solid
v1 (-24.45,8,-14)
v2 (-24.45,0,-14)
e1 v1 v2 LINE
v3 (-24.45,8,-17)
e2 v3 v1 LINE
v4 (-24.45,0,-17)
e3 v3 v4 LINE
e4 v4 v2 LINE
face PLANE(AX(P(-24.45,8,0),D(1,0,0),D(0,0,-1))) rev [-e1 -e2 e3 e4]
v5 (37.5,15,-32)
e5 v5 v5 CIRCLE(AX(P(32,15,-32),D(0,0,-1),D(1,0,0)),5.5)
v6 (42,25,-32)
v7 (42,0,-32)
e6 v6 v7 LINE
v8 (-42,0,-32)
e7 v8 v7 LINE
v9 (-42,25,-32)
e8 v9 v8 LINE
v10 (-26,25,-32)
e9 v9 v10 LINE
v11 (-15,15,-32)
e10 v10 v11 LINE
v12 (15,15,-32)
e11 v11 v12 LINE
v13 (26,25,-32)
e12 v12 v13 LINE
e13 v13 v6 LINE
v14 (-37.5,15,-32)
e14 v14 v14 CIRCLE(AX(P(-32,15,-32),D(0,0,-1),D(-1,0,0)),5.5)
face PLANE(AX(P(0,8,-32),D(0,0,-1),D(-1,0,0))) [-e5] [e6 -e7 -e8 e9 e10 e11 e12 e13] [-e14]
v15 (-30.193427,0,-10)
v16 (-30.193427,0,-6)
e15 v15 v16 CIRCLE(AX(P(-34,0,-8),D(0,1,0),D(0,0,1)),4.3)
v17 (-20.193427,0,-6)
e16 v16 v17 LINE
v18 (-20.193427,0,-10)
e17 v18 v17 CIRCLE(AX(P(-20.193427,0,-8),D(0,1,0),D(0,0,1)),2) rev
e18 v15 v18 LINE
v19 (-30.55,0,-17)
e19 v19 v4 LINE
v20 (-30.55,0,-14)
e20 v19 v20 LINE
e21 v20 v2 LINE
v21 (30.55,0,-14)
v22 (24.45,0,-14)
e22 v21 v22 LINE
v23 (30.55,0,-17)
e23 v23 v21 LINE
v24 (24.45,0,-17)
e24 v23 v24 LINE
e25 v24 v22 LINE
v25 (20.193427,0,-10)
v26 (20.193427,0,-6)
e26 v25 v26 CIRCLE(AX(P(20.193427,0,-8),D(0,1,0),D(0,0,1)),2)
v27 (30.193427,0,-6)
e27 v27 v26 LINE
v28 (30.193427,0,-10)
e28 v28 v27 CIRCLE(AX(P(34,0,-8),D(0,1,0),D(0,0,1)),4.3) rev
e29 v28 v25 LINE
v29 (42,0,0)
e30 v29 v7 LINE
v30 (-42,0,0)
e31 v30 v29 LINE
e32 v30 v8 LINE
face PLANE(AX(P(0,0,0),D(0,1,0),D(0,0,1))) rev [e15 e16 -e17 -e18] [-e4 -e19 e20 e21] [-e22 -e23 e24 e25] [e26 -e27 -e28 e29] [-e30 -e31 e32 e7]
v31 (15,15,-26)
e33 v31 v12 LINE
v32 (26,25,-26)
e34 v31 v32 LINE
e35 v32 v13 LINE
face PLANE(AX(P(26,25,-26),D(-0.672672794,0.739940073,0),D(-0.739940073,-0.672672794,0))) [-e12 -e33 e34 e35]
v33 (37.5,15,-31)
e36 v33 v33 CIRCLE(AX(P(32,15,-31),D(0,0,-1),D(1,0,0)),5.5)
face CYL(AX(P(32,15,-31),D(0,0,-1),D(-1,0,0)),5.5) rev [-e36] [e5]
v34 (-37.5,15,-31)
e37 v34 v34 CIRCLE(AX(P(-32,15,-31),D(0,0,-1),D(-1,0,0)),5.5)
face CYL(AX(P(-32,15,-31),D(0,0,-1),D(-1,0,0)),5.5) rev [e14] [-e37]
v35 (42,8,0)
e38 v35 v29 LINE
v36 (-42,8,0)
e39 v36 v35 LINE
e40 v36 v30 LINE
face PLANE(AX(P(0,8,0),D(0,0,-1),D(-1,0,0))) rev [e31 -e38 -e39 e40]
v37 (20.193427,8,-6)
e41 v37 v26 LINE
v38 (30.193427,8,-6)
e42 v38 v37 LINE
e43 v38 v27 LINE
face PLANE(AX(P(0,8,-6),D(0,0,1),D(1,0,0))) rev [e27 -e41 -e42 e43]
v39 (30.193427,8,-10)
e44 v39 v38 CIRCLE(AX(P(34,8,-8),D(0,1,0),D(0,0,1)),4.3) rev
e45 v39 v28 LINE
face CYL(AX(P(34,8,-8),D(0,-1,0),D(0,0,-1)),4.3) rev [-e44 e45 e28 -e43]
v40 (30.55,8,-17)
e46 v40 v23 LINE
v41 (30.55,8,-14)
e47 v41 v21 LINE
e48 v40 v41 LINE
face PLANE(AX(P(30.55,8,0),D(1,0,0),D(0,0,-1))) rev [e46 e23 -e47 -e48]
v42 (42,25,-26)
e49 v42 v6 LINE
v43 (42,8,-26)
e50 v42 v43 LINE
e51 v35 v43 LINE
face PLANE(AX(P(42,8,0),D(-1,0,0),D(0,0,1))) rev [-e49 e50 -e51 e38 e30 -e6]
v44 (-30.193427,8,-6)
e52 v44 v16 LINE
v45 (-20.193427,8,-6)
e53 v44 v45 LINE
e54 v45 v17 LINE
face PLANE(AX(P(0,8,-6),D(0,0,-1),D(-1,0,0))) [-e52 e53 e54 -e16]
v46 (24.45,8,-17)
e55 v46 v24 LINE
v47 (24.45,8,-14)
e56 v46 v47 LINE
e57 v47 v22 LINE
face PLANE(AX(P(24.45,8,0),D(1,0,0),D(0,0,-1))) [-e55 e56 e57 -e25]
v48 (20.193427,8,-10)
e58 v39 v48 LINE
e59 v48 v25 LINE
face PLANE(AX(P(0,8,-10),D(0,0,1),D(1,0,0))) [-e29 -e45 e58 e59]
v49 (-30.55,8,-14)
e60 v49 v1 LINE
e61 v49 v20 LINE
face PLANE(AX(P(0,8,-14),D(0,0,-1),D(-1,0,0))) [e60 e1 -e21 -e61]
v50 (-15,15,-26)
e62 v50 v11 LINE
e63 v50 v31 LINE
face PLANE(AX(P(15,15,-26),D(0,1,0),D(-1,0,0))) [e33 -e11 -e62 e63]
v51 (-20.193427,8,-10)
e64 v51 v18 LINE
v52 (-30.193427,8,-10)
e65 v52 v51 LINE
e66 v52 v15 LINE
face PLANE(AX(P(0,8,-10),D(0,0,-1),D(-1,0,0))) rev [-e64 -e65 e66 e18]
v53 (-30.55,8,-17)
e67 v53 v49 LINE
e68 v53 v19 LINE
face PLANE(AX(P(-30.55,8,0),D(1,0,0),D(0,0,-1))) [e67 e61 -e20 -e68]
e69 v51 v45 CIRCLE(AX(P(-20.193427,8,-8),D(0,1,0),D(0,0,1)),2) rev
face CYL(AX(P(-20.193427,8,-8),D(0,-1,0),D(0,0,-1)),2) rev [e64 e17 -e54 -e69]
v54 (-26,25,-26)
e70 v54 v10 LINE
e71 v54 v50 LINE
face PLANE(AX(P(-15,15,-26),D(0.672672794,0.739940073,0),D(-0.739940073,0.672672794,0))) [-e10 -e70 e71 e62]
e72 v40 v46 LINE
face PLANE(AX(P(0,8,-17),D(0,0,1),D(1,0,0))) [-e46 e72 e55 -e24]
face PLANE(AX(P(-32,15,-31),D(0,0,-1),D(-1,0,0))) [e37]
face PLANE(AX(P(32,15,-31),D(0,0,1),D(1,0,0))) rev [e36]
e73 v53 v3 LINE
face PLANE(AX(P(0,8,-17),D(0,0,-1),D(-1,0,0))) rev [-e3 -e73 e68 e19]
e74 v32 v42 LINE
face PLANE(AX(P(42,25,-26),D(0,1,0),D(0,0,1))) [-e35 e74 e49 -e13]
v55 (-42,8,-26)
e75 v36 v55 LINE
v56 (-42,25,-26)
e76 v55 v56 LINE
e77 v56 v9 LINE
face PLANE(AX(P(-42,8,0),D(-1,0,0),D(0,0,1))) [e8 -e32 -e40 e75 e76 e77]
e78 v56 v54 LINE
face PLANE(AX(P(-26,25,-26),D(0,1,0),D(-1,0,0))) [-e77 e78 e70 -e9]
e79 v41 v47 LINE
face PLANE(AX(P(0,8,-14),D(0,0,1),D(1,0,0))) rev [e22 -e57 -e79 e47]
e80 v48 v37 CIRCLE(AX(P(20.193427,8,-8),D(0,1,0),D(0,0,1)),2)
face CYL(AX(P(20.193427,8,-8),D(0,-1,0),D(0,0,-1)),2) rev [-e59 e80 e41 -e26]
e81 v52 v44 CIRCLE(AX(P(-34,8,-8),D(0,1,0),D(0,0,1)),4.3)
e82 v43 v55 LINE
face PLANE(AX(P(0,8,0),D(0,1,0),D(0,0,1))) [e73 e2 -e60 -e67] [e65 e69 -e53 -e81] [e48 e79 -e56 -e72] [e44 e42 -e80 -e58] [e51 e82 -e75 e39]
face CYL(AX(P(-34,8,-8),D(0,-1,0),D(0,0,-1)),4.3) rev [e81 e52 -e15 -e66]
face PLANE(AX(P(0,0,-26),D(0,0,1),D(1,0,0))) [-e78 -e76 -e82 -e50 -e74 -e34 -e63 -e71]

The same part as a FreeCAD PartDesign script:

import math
import FreeCAD as App
import Part
import Sketcher
from FreeCAD import Vector


def add_polygon(sketch, points):
    """Adds a closed chain of lines whose ends are joined by coincident constraints."""
    first, n = sketch.GeometryCount, len(points)
    for a, b in zip(points, points[1:] + points[:1]):
        sketch.addGeometry(Part.LineSegment(App.Vector(*a, 0), App.Vector(*b, 0)), False)
    for i in range(n):
        sketch.addConstraint(Sketcher.Constraint("Coincident", first + i, 2, first + (i + 1) % n, 1))

doc = App.newDocument("Part")
body = doc.addObject("PartDesign::Body", "Body")

# Sketch on XZ plane
sketch1 = doc.addObject("Sketcher::SketchObject", "Sketch")
body.addObject(sketch1)
sketch1.AttachmentSupport = (doc.XZ_Plane, [""])
sketch1.MapMode = "FlatFace"
add_polygon(sketch1, [(-42, -32), (-42, 0), (42, 0), (42, -32)])  # lines 0-3
sketch1.addGeometry(Part.ArcOfCircle(Part.Circle(Vector(-34, -8, 0), Vector(0, 0, 1), 4.3), math.radians(28), math.radians(332)), False)  # 4
sketch1.addGeometry(Part.LineSegment(Vector(-30.2, -10, 0), Vector(-20.2, -10, 0)), False)  # 5
sketch1.addGeometry(Part.ArcOfCircle(Part.Circle(Vector(-20.2, -8, 0), Vector(0, 0, 1), 2), math.radians(-90), math.radians(90)), False)  # 6
sketch1.addGeometry(Part.LineSegment(Vector(-20.2, -6, 0), Vector(-30.2, -6, 0)), False)  # 7
sketch1.addGeometry(Part.ArcOfCircle(Part.Circle(Vector(20.2, -8, 0), Vector(0, 0, 1), 2), math.radians(90), math.radians(270)), False)  # 8
sketch1.addGeometry(Part.LineSegment(Vector(20.2, -10, 0), Vector(30.2, -10, 0)), False)  # 9
sketch1.addGeometry(Part.ArcOfCircle(Part.Circle(Vector(34, -8, 0), Vector(0, 0, 1), 4.3), math.radians(-152), math.radians(152)), False)  # 10
sketch1.addGeometry(Part.LineSegment(Vector(30.2, -6, 0), Vector(20.2, -6, 0)), False)  # 11
add_polygon(sketch1, [(-24.4, -14), (-30.6, -14), (-30.6, -17), (-24.4, -17)])  # lines 12-15
add_polygon(sketch1, [(30.6, -14), (24.4, -14), (24.4, -17), (30.6, -17)])  # lines 16-19
sketch1.addConstraint(Sketcher.Constraint("Coincident", 4, 2, 5, 1))
sketch1.addConstraint(Sketcher.Constraint("Tangent", 5, 2, 6, 1))
sketch1.addConstraint(Sketcher.Constraint("Tangent", 6, 2, 7, 1))
sketch1.addConstraint(Sketcher.Constraint("Coincident", 7, 2, 4, 1))
sketch1.addConstraint(Sketcher.Constraint("Tangent", 8, 2, 9, 1))
sketch1.addConstraint(Sketcher.Constraint("Coincident", 9, 2, 10, 1))
sketch1.addConstraint(Sketcher.Constraint("Coincident", 10, 2, 11, 1))
sketch1.addConstraint(Sketcher.Constraint("Tangent", 11, 2, 8, 1))
sketch1.addConstraint(Sketcher.Constraint("Vertical", 0))
sketch1.addConstraint(Sketcher.Constraint("Horizontal", 1))
sketch1.addConstraint(Sketcher.Constraint("Vertical", 2))
sketch1.addConstraint(Sketcher.Constraint("Horizontal", 3))
sketch1.addConstraint(Sketcher.Constraint("Horizontal", 5))
sketch1.addConstraint(Sketcher.Constraint("Horizontal", 7))
sketch1.addConstraint(Sketcher.Constraint("Horizontal", 9))
sketch1.addConstraint(Sketcher.Constraint("Horizontal", 11))
sketch1.addConstraint(Sketcher.Constraint("Horizontal", 12))
sketch1.addConstraint(Sketcher.Constraint("Vertical", 13))
sketch1.addConstraint(Sketcher.Constraint("Horizontal", 14))
sketch1.addConstraint(Sketcher.Constraint("Vertical", 15))
sketch1.addConstraint(Sketcher.Constraint("Horizontal", 16))
sketch1.addConstraint(Sketcher.Constraint("Vertical", 17))
sketch1.addConstraint(Sketcher.Constraint("Horizontal", 18))
sketch1.addConstraint(Sketcher.Constraint("Vertical", 19))
sketch1.addConstraint(Sketcher.Constraint("Equal", 6, 8))
sketch1.addConstraint(Sketcher.Constraint("Equal", 4, 10))
sketch1.addConstraint(Sketcher.Constraint("Symmetric", 0, 2, 1, 2, -1, 1))
sketch1.addConstraint(Sketcher.Constraint("Symmetric", 6, 3, 8, 3, -2))
sketch1.addConstraint(Sketcher.Constraint("Symmetric", 4, 3, 10, 3, -2))
sketch1.addConstraint(Sketcher.Constraint("Symmetric", 15, 2, 16, 2, -2))
sketch1.addConstraint(Sketcher.Constraint("Symmetric", 13, 2, 18, 2, -2))
sketch1.addConstraint(Sketcher.Constraint("Horizontal", 4, 3, 6, 3))
sketch1.addConstraint(Sketcher.Constraint("Radius", 6, 2.0))
sketch1.addConstraint(Sketcher.Constraint("Radius", 4, 4.3))
sketch1.addConstraint(Sketcher.Constraint("DistanceX", 1, 1, 1, 2, 84.0))
sketch1.addConstraint(Sketcher.Constraint("DistanceX", 5, 1, 5, 2, 10.0))
sketch1.addConstraint(Sketcher.Constraint("DistanceY", 0, 1, 0, 2, 32.0))
sketch1.addConstraint(Sketcher.Constraint("DistanceY", 13, 2, 13, 1, 3.0))
sketch1.addConstraint(Sketcher.Constraint("DistanceX", 12, 2, 12, 1, 6.1))
sketch1.addConstraint(Sketcher.Constraint("DistanceX", 4, 3, -1, 1, 34.0))
sketch1.addConstraint(Sketcher.Constraint("DistanceY", 4, 3, -1, 1, 8.0))
sketch1.addConstraint(Sketcher.Constraint("DistanceY", 12, 2, -1, 1, 14.0))
sketch1.addConstraint(Sketcher.Constraint("DistanceX", 12, 2, -1, 1, 30.55))
pad1 = doc.addObject("PartDesign::Pad", "Pad")
body.addObject(pad1)
pad1.Profile = sketch1
pad1.Length = 8
pad1.Reversed = True

# Sketch on XY plane
sketch2 = doc.addObject("Sketcher::SketchObject", "Sketch001")
body.addObject(sketch2)
sketch2.AttachmentSupport = (doc.XY_Plane, [""])
sketch2.MapMode = "FlatFace"
sketch2.AttachmentOffset = App.Placement(Vector(0, 0, -32), App.Rotation())
add_polygon(sketch2, [(42, 25), (42, 8), (-42, 8), (-42, 25), (-26, 25), (-15, 15), (15, 15), (26, 25)])  # lines 0-7
sketch2.addConstraint(Sketcher.Constraint("Vertical", 0))
sketch2.addConstraint(Sketcher.Constraint("Horizontal", 1))
sketch2.addConstraint(Sketcher.Constraint("Vertical", 2))
sketch2.addConstraint(Sketcher.Constraint("Horizontal", 3))
sketch2.addConstraint(Sketcher.Constraint("Horizontal", 5))
sketch2.addConstraint(Sketcher.Constraint("Horizontal", 7))
sketch2.addConstraint(Sketcher.Constraint("Symmetric", 3, 2, 6, 2, -2))
sketch2.addConstraint(Sketcher.Constraint("Equal", 3, 7))
sketch2.addConstraint(Sketcher.Constraint("Equal", 4, 6))
sketch2.addConstraint(Sketcher.Constraint("DistanceX", 1, 2, 1, 1, 84.0))
sketch2.addConstraint(Sketcher.Constraint("DistanceX", 3, 1, 3, 2, 16.0))
sketch2.addConstraint(Sketcher.Constraint("DistanceX", 5, 1, 5, 2, 30.0))
sketch2.addConstraint(Sketcher.Constraint("DistanceY", 0, 2, 0, 1, 17.0))
sketch2.addConstraint(Sketcher.Constraint("DistanceY", -1, 1, 0, 2, 8.0))
sketch2.addConstraint(Sketcher.Constraint("DistanceY", -1, 1, 4, 2, 15.0))
pad2 = doc.addObject("PartDesign::Pad", "Pad001")
body.addObject(pad2)
pad2.Profile = sketch2
pad2.Length = 6

# Sketch on XY plane
sketch3 = doc.addObject("Sketcher::SketchObject", "Sketch002")
body.addObject(sketch3)
sketch3.AttachmentSupport = (doc.XY_Plane, [""])
sketch3.MapMode = "FlatFace"
sketch3.AttachmentOffset = App.Placement(Vector(0, 0, -32), App.Rotation())
sketch3.addGeometry(Part.Circle(Vector(-32, 15, 0), Vector(0, 0, 1), 6), False)
sketch3.addGeometry(Part.Circle(Vector(32, 15, 0), Vector(0, 0, 1), 6), False)
sketch3.addConstraint(Sketcher.Constraint("Equal", 0, 1))
sketch3.addConstraint(Sketcher.Constraint("Symmetric", 0, 3, 1, 3, -2))
sketch3.addConstraint(Sketcher.Constraint("Diameter", 0, 11.0))
sketch3.addConstraint(Sketcher.Constraint("DistanceX", 0, 3, -1, 1, 32.0))
sketch3.addConstraint(Sketcher.Constraint("DistanceY", -1, 1, 0, 3, 15.0))
pocket1 = doc.addObject("PartDesign::Pocket", "Pocket")
body.addObject(pocket1)
pocket1.Profile = sketch3
pocket1.Length = 1
pocket1.Reversed = True

doc.recompute()
